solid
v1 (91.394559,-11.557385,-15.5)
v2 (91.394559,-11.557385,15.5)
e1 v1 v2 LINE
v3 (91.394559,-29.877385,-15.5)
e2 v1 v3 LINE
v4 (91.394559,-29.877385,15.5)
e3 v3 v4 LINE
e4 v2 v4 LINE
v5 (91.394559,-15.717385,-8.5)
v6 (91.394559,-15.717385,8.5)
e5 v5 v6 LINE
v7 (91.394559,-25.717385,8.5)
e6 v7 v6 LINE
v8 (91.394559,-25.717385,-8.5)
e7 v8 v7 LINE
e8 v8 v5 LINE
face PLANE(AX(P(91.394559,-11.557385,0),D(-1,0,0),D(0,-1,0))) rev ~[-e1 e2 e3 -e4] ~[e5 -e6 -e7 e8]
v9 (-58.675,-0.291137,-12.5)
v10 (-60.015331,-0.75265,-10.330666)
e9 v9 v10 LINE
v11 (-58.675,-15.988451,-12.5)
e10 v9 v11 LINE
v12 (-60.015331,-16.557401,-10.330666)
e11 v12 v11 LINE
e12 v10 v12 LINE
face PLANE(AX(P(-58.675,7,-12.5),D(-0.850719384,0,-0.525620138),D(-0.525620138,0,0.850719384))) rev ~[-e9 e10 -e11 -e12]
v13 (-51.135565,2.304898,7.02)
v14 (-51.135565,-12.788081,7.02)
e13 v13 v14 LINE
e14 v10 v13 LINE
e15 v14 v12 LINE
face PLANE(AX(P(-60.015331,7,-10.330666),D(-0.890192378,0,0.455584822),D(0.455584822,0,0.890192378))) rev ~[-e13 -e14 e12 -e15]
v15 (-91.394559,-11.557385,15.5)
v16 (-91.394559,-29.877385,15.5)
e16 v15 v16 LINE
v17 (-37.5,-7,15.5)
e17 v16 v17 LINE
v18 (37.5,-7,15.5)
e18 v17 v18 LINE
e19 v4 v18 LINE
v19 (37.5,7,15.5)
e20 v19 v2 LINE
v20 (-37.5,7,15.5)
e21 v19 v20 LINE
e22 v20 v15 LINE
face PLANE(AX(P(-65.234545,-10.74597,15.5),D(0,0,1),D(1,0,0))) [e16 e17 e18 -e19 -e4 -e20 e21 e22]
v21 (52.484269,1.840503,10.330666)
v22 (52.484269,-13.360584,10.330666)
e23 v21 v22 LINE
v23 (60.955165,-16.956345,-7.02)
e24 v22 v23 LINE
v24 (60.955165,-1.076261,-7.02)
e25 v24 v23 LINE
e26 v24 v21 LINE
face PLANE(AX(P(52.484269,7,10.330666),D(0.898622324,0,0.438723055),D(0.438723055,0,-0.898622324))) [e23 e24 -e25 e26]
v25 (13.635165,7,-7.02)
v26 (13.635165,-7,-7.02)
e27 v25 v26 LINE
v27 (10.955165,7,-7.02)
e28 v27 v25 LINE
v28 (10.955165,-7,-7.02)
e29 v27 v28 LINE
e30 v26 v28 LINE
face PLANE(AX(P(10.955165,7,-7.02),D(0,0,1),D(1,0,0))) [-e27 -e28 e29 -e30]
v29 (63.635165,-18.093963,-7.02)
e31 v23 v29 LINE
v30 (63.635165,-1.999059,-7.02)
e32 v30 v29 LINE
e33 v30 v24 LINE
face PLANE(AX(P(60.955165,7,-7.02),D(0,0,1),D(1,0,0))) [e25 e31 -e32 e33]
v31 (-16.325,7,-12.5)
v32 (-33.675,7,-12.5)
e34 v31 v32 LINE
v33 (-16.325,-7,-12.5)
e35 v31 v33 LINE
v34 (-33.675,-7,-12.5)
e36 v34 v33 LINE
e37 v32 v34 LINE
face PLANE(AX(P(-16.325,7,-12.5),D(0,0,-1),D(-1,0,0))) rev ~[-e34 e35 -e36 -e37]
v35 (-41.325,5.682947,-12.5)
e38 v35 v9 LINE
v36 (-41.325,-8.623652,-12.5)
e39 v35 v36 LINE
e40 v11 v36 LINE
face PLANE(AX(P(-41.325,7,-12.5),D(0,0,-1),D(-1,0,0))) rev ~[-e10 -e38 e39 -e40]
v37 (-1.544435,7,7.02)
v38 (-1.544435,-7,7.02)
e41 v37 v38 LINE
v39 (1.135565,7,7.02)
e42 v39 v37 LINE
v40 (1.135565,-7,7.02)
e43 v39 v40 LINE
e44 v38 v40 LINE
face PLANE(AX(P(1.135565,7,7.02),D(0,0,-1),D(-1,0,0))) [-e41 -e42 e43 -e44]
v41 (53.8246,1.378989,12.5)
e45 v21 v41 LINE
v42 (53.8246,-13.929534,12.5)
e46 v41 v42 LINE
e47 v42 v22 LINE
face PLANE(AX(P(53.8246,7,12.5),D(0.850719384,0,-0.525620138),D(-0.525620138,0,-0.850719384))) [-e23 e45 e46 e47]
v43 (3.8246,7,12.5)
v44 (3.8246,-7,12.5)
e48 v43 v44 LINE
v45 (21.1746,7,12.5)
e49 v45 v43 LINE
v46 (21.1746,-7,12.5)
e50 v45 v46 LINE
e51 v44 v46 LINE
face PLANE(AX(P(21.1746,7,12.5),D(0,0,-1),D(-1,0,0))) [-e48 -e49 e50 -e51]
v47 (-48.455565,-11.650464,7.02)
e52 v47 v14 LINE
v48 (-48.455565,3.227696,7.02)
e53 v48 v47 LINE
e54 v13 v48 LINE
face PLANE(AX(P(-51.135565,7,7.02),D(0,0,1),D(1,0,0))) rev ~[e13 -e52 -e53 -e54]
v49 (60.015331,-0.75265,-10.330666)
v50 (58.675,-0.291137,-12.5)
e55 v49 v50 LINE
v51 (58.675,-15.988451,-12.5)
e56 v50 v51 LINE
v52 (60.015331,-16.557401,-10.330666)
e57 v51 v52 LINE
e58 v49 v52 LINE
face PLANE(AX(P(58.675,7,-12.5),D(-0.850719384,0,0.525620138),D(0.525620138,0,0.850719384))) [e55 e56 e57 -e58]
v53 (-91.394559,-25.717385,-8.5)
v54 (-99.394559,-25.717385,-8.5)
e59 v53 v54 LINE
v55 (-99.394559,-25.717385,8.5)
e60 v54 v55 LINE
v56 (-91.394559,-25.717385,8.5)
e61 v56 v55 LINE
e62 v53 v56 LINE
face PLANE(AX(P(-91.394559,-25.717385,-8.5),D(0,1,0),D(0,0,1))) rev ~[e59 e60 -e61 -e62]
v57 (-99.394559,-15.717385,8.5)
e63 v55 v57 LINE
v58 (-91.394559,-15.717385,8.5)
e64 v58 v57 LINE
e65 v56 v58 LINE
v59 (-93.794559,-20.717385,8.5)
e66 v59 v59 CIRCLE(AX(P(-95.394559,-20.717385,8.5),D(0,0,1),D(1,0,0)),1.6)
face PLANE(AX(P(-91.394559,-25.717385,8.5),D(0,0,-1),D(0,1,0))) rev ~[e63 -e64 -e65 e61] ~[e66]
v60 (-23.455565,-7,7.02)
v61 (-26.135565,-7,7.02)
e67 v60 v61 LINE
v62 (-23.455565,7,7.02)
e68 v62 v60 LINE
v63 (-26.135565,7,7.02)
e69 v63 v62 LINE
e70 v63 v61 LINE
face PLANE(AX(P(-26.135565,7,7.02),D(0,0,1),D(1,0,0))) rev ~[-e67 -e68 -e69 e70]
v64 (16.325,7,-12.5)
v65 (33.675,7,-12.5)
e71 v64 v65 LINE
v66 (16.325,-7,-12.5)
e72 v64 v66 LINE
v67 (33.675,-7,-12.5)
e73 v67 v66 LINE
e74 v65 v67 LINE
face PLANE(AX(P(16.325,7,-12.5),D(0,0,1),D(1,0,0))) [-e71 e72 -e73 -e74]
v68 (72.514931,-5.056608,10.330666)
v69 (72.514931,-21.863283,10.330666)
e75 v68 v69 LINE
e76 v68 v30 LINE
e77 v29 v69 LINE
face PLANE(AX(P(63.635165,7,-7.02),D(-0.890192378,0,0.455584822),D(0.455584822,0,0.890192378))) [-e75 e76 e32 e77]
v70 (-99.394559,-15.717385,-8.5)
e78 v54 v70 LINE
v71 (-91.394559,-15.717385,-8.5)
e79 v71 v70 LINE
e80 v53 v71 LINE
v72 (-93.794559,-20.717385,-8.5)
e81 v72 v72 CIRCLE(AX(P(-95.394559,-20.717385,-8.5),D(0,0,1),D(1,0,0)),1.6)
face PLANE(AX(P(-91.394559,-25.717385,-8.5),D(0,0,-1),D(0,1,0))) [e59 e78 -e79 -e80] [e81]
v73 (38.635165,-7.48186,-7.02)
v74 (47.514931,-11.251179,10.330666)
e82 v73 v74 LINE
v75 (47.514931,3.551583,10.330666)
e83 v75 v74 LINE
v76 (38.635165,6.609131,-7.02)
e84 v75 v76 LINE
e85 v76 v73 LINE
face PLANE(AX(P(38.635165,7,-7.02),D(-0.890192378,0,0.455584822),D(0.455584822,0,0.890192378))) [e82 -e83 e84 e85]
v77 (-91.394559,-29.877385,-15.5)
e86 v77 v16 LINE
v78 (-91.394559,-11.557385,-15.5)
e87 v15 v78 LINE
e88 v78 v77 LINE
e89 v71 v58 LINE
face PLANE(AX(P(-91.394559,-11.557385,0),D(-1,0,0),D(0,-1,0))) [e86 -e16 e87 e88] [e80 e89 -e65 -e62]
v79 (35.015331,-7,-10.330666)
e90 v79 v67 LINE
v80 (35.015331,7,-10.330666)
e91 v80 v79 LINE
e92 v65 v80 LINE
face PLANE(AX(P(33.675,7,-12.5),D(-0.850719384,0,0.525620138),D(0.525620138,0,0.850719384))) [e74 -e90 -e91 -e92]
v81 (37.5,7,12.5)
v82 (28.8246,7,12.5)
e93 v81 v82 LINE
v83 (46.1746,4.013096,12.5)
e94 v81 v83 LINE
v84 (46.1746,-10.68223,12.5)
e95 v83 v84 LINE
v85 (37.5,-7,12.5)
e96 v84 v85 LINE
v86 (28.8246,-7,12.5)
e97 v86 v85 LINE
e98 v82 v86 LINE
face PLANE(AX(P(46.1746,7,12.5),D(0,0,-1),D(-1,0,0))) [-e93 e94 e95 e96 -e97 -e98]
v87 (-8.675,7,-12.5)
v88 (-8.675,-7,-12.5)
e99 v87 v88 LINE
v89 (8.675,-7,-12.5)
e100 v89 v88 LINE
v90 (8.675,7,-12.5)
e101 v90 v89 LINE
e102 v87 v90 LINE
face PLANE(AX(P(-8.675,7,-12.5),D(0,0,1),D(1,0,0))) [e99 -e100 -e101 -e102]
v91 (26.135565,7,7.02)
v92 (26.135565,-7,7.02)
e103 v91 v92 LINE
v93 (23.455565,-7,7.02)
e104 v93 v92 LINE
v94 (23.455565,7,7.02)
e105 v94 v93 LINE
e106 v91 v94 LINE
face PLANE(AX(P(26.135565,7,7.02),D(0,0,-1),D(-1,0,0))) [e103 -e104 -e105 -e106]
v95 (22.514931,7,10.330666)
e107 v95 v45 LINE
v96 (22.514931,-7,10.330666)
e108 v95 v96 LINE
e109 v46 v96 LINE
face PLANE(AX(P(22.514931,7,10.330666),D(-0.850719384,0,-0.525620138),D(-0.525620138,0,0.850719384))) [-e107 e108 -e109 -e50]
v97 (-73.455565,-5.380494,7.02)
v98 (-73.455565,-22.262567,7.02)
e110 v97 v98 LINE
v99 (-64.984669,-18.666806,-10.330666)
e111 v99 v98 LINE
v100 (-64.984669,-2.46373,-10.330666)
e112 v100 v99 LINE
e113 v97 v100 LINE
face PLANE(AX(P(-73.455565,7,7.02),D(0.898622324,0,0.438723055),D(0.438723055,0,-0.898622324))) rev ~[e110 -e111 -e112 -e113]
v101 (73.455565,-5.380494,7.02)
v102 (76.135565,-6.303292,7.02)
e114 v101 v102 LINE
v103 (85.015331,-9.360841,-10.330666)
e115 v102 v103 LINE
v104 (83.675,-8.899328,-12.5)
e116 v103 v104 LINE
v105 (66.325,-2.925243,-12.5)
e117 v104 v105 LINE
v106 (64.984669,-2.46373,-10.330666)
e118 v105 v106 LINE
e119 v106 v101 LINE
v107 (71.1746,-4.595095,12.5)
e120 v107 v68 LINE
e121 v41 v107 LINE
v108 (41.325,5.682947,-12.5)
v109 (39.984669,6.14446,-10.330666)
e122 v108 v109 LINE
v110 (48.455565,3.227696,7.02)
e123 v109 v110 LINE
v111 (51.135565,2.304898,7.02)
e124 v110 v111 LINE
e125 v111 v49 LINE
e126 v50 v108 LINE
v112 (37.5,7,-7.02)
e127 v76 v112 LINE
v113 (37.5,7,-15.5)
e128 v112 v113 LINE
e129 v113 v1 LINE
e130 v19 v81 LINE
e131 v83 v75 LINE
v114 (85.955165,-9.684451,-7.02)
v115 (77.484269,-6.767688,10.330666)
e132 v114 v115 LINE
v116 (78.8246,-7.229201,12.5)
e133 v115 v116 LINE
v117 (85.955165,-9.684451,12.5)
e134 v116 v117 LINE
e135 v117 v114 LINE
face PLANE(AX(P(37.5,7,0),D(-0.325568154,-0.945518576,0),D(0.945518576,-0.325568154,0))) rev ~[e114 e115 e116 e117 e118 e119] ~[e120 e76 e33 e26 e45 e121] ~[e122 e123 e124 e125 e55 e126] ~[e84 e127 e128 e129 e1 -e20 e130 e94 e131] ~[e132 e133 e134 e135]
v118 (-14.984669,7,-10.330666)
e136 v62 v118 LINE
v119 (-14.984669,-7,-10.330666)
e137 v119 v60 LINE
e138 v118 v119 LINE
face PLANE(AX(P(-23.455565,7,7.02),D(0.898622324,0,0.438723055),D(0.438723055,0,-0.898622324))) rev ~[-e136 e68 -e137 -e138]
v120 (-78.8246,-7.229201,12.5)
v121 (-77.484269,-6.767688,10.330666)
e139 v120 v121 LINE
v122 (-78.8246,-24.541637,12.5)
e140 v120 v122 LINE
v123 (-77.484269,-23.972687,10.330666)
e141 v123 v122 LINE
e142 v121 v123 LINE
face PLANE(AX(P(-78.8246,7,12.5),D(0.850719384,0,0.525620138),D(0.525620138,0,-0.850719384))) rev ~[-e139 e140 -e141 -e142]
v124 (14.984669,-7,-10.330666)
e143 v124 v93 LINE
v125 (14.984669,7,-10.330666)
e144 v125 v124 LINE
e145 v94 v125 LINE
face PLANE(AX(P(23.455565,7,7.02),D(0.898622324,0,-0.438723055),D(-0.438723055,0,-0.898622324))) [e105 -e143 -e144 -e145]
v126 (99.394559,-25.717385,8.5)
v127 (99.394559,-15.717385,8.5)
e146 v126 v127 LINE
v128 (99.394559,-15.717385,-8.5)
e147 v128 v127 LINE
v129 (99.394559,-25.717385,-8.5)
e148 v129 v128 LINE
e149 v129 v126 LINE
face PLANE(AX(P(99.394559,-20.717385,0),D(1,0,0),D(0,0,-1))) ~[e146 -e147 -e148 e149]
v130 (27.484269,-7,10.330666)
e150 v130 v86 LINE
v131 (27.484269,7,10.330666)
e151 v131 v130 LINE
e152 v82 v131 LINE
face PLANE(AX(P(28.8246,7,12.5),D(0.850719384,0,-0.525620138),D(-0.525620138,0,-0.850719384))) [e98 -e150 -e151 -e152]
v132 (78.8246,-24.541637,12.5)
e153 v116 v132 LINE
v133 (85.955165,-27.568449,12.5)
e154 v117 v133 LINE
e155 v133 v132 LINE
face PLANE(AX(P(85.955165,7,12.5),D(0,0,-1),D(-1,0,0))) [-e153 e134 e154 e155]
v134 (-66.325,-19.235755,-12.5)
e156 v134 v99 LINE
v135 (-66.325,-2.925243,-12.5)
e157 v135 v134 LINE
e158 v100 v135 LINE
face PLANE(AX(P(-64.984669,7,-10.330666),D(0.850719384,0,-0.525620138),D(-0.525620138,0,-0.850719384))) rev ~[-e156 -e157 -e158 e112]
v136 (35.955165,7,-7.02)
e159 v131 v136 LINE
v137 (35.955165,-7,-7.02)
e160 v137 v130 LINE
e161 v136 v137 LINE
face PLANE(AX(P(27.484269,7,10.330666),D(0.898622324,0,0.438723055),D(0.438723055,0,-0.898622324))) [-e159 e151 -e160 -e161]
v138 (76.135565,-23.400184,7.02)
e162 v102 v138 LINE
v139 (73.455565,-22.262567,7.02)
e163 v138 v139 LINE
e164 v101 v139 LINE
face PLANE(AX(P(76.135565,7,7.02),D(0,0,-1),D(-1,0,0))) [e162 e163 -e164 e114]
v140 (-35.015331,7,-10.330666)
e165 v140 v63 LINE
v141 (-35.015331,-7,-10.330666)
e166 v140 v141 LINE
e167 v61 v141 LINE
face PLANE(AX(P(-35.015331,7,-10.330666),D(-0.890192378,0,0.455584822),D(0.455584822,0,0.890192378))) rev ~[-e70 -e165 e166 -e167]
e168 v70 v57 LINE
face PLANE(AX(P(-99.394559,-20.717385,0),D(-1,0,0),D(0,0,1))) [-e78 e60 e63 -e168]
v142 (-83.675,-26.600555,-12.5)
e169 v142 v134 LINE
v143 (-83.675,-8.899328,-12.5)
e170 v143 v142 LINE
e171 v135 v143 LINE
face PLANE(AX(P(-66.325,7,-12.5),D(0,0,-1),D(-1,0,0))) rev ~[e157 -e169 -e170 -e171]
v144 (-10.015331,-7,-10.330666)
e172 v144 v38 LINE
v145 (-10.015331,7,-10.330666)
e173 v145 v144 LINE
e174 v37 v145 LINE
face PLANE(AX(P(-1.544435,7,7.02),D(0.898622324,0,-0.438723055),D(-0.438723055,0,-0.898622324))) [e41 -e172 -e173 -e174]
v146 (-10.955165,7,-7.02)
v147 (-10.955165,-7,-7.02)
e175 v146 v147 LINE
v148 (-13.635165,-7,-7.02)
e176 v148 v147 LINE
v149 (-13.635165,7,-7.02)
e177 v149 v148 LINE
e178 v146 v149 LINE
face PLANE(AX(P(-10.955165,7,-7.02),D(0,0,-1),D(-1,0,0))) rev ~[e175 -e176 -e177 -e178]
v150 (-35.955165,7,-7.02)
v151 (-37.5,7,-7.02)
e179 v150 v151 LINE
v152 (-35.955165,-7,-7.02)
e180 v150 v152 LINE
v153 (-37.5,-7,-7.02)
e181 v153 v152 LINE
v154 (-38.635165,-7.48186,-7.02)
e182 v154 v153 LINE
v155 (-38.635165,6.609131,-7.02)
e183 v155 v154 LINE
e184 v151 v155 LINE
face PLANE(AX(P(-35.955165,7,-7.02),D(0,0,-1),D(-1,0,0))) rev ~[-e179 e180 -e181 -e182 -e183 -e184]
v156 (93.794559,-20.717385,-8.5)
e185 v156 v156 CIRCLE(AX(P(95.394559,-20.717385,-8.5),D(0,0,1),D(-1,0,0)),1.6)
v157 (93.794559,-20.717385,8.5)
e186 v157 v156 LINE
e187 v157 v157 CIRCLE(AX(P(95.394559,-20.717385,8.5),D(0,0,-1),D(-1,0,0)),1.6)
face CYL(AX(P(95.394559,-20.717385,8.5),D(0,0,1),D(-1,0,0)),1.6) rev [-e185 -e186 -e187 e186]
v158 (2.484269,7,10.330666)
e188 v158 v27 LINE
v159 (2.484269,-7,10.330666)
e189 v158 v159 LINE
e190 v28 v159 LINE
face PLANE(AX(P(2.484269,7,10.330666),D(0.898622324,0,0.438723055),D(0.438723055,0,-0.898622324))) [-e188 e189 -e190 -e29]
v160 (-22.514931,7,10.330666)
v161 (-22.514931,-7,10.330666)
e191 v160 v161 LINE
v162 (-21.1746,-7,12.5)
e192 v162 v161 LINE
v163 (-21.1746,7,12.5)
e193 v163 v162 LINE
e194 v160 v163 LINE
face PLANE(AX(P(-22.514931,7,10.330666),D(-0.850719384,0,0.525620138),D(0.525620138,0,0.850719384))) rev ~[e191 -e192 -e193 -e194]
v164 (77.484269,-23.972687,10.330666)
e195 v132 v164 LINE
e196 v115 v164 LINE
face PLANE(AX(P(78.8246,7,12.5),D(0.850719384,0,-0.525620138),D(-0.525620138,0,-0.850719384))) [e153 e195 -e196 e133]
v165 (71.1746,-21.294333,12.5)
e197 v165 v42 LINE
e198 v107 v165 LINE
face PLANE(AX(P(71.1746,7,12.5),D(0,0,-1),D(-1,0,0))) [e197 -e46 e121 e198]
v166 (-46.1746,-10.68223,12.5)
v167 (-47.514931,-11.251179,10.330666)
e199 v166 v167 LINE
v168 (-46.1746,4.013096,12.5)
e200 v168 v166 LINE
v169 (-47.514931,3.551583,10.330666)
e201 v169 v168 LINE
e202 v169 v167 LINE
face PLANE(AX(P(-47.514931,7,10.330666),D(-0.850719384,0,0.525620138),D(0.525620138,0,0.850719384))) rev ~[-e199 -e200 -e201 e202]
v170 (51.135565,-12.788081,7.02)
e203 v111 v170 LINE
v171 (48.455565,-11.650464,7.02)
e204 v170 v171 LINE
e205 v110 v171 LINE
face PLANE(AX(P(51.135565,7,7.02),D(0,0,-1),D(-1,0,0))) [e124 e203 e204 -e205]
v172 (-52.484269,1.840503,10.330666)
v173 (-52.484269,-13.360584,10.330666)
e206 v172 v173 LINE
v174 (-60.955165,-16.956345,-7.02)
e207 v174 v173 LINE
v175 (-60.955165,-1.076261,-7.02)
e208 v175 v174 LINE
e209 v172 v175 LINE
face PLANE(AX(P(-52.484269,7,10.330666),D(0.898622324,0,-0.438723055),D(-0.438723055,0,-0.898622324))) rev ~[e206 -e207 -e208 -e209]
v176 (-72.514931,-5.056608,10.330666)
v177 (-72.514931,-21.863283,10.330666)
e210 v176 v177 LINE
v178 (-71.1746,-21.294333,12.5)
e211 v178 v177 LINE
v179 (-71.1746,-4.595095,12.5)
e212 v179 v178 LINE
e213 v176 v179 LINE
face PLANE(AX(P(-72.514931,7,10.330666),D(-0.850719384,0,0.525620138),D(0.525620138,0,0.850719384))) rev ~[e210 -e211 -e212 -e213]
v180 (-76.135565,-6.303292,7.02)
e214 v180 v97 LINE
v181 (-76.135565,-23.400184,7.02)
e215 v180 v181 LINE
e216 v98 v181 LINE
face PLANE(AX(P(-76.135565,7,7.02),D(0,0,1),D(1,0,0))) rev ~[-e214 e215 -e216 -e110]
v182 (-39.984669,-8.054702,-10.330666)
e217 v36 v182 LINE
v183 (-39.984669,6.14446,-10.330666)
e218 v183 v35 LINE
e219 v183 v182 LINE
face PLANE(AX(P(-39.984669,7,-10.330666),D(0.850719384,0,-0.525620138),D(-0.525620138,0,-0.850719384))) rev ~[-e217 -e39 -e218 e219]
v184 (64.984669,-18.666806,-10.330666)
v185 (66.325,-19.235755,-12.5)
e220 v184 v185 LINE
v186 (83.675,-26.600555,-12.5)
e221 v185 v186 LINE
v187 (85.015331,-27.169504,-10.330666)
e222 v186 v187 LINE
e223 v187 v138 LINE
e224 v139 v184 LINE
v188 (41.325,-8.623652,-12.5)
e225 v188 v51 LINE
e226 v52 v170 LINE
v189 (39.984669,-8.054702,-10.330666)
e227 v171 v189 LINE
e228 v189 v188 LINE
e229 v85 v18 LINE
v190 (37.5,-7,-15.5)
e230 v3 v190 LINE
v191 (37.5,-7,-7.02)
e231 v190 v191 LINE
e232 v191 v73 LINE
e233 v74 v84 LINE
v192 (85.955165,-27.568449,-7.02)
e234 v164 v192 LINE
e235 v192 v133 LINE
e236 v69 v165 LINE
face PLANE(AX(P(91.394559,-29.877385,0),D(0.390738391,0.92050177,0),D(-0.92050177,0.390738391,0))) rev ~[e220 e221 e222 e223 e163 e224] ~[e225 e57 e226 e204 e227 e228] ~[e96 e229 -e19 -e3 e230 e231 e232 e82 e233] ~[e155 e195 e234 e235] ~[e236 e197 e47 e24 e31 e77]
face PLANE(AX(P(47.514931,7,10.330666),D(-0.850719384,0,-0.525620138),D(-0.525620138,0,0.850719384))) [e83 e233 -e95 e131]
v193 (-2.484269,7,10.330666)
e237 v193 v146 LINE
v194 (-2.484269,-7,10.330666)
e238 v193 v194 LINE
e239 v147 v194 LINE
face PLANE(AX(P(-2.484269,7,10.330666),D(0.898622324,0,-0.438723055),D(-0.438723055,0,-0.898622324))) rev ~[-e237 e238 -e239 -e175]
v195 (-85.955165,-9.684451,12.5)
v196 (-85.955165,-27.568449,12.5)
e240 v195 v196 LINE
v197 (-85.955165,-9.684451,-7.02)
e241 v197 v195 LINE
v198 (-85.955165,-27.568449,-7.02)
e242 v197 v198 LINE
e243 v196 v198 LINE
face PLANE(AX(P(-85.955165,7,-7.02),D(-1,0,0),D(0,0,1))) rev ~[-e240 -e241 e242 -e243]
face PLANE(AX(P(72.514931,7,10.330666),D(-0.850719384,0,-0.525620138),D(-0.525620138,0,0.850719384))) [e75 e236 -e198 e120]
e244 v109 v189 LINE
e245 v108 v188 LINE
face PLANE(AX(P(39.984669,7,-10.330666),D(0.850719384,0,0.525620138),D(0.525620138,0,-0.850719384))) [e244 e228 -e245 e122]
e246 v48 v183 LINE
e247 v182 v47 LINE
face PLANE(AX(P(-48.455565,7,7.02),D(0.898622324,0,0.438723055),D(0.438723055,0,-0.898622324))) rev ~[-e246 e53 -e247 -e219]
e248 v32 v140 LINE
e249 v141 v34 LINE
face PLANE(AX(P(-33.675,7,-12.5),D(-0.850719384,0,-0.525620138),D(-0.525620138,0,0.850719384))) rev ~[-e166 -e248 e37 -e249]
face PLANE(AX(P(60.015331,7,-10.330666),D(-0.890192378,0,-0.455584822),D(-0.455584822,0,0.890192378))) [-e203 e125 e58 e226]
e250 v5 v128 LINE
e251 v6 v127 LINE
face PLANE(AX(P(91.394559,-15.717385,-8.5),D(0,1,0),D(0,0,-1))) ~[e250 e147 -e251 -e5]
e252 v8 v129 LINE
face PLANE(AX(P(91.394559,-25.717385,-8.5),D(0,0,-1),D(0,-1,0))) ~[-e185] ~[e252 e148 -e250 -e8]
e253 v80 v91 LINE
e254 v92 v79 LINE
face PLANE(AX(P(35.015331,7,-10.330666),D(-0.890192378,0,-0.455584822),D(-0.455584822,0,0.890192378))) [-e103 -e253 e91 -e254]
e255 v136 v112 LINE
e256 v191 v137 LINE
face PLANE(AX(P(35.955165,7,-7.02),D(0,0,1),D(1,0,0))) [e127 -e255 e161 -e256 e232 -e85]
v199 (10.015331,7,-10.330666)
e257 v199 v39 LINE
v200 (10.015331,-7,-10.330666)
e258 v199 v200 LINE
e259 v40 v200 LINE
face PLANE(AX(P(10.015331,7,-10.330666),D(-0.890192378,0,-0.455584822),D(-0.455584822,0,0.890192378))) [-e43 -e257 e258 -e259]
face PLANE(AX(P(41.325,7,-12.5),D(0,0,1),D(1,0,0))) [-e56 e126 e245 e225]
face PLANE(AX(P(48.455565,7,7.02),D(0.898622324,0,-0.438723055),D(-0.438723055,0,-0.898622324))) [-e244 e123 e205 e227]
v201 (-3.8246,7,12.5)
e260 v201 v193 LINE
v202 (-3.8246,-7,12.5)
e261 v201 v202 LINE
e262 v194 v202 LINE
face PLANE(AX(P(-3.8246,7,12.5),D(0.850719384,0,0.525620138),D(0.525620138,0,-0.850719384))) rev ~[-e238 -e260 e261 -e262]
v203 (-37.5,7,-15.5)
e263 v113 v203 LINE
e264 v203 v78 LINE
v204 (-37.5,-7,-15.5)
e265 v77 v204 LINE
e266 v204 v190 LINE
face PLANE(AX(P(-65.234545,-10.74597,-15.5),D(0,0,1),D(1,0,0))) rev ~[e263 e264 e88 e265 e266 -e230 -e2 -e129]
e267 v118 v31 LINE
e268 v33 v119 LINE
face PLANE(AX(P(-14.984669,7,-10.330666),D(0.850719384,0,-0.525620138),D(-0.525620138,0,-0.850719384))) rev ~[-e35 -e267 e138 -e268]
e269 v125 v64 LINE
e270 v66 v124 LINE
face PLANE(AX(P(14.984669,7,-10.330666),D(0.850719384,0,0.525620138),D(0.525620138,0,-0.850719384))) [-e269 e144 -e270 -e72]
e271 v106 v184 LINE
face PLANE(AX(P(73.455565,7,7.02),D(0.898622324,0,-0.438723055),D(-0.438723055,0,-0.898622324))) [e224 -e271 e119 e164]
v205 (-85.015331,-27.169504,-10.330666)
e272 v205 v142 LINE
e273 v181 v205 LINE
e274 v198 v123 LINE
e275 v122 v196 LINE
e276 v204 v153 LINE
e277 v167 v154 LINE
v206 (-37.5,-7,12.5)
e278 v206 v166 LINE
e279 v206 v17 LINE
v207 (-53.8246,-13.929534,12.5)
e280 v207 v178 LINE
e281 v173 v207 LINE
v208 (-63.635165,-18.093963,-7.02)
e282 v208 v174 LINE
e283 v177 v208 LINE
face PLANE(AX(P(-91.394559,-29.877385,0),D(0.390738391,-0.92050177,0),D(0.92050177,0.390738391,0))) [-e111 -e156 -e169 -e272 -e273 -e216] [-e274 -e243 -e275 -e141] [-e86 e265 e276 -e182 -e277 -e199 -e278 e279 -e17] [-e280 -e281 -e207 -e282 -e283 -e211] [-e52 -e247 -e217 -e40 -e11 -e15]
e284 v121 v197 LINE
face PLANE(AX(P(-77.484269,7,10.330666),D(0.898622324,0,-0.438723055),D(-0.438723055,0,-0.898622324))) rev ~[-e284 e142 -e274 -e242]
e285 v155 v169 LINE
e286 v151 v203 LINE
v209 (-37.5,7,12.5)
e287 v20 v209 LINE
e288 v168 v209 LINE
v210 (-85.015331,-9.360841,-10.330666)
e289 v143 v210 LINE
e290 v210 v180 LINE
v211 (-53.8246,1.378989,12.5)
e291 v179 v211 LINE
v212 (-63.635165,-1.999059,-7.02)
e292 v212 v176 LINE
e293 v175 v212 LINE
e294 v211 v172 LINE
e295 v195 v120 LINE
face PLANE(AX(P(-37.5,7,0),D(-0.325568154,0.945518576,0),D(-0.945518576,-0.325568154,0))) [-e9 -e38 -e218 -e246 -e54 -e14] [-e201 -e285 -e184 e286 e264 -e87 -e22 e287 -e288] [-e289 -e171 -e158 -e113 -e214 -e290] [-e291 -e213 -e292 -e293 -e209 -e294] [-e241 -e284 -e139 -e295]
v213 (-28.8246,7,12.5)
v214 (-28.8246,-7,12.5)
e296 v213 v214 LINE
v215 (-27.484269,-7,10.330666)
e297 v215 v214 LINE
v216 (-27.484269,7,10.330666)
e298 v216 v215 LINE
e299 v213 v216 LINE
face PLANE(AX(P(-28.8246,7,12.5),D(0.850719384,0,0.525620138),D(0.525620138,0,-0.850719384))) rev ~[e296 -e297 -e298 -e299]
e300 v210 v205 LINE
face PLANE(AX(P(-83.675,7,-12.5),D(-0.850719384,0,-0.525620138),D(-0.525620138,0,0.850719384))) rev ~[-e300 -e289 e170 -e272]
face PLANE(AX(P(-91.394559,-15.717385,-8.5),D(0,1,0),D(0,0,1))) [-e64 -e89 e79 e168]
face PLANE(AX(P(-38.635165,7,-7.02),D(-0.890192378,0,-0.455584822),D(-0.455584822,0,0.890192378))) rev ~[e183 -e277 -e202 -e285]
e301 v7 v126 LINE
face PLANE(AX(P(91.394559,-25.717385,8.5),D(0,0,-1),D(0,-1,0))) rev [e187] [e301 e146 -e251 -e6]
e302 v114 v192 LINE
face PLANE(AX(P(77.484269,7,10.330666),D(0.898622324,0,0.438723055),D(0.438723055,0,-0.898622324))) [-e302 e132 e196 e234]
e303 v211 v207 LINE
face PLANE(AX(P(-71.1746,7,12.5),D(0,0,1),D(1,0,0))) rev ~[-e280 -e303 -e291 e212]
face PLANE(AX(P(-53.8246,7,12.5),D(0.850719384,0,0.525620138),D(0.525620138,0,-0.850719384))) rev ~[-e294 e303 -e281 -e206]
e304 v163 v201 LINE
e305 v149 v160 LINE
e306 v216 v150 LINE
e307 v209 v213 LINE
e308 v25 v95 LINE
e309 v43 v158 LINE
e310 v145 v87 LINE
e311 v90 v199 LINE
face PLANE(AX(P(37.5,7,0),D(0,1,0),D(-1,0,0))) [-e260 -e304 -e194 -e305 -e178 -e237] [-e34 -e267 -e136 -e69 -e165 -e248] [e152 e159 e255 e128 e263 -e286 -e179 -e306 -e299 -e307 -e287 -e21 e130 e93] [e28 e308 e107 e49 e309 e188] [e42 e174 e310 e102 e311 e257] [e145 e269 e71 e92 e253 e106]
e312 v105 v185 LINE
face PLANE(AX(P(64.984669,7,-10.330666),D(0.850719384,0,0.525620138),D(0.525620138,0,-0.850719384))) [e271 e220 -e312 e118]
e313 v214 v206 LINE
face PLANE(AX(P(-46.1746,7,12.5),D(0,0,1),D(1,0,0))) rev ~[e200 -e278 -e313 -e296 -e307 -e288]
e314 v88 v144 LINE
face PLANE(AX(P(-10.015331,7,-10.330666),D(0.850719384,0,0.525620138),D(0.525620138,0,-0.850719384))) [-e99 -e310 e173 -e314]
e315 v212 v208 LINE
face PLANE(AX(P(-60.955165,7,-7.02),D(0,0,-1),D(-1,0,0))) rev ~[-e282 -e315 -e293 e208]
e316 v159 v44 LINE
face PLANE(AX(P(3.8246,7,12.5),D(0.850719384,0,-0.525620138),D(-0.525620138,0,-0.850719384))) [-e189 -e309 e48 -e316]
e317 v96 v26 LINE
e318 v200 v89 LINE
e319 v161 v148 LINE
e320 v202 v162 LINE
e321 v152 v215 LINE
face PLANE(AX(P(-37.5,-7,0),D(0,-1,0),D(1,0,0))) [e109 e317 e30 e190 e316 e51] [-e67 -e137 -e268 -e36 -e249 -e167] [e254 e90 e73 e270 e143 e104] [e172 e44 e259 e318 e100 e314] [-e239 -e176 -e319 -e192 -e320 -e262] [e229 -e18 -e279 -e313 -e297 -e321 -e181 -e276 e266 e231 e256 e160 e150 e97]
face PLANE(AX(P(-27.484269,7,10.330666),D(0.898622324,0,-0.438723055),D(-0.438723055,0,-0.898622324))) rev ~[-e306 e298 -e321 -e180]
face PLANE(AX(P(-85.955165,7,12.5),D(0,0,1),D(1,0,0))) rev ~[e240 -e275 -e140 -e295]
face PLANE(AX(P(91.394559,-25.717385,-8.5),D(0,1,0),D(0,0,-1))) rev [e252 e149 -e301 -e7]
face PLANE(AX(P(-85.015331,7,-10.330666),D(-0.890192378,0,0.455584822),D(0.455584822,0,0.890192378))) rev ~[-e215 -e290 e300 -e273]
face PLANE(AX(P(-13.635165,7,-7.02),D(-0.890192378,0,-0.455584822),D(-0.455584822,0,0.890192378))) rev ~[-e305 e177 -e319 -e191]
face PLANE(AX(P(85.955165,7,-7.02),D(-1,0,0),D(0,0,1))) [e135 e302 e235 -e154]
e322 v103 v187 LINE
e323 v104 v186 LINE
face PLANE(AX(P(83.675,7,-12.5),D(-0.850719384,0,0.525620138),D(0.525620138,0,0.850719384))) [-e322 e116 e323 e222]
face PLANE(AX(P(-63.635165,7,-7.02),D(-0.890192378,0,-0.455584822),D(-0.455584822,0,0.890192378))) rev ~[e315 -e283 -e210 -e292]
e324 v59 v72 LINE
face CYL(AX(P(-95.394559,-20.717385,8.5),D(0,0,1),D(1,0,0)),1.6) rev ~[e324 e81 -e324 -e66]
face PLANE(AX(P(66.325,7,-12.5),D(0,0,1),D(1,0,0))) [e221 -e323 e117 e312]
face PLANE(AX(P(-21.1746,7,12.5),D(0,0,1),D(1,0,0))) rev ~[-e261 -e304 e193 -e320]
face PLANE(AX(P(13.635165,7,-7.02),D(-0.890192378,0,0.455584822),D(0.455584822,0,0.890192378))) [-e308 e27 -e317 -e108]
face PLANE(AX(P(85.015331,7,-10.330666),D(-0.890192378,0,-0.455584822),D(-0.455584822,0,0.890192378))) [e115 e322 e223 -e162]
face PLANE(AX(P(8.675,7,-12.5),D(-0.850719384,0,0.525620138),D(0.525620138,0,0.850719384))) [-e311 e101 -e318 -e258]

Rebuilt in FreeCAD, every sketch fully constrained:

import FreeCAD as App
import Part
import Sketcher
Q = App.Units.Quantity

doc = App.newDocument("Part")
params = doc.addObject("Spreadsheet::Sheet", "Params")
for row, (alias, value) in enumerate([
    ("sketch1_width", "75 mm"),
    ("sketch1_length", "57 mm"),
    ("sketch1_height", "18.32 mm"),
    ("pad1_length", "31 mm"),
    ("sketch2_width", "10 mm"),
    ("sketch2_height", "17 mm"),
    ("pad2_length", "8 mm"),
    ("sketch3_diameter", "3.2 mm"),
    ("sketch4_width", "17.35 mm"),
    ("sketch4_width2", "2.68 mm"),
    ("sketch4_height", "19.52 mm"),
    ("sketch4_length", "2.55 mm"),
], start=1):
    params.set(f"A{row}", alias)
    params.set(f"B{row}", "=" + value)
    params.setAlias(f"B{row}", alias)

body = doc.addObject("PartDesign::Body", "Body")

sketch1 = body.newObject("Sketcher::SketchObject", "Sketch")
sketch1.AttachmentSupport = (doc.getObject("XY_Plane"), [""])
sketch1.MapMode = "FlatFace"
sketch1.addGeometry([
    Part.LineSegment(App.Vector(-91.394559, -11.557385, 0), App.Vector(-91.394559, -29.877385, 0)),
    Part.LineSegment(App.Vector(-91.394559, -29.877385, 0), App.Vector(-37.5, -7, 0)),
    Part.LineSegment(App.Vector(-37.5, -7, 0), App.Vector(37.5, -7, 0)),
    Part.LineSegment(App.Vector(37.5, -7, 0), App.Vector(91.394559, -29.877385, 0)),
    Part.LineSegment(App.Vector(91.394559, -29.877385, 0), App.Vector(91.394559, -11.557385, 0)),
    Part.LineSegment(App.Vector(91.394559, -11.557385, 0), App.Vector(37.5, 7, 0)),
    Part.LineSegment(App.Vector(37.5, 7, 0), App.Vector(-37.5, 7, 0)),
    Part.LineSegment(App.Vector(-37.5, 7, 0), App.Vector(-91.394559, -11.557385, 0)),
], False)
sketch1.addConstraint([
    Sketcher.Constraint("Coincident", 0, 2, 1, 1),
    Sketcher.Constraint("Coincident", 1, 2, 2, 1),
    Sketcher.Constraint("Coincident", 2, 2, 3, 1),
    Sketcher.Constraint("Coincident", 3, 2, 4, 1),
    Sketcher.Constraint("Coincident", 4, 2, 5, 1),
    Sketcher.Constraint("Coincident", 5, 2, 6, 1),
    Sketcher.Constraint("Coincident", 6, 2, 7, 1),
    Sketcher.Constraint("Coincident", 7, 2, 0, 1),
    Sketcher.Constraint("Vertical", 0),
    Sketcher.Constraint("Horizontal", 2),
    Sketcher.Constraint("Vertical", 4),
    Sketcher.Constraint("Horizontal", 6),
    Sketcher.Constraint("Symmetric", 1, 2, 5, 2, -1, 1),
    Sketcher.Constraint("Symmetric", 0, 2, 3, 2, -2),
    Sketcher.Constraint("Horizontal", 4, 2, 7, 2),
    Sketcher.Constraint("Vertical", 2, 2, 5, 2),
    Sketcher.Constraint("Vertical", 1, 2, 6, 2),
    Sketcher.Constraint("DistanceX", 2, 1, 2, 2, Q("75 mm")),
    Sketcher.Constraint("Angle", 5, Q("161 deg")),
    Sketcher.Constraint("Distance", 5, Q("57 mm")),
    Sketcher.Constraint("DistanceY", 1, 2, -1, 1, Q("7 mm")),
    Sketcher.Constraint("DistanceY", 0, 2, 0, 1, Q("18.32 mm")),
])
sketch1.setExpression("Constraints[17]", "Params.sketch1_width")
sketch1.setExpression("Constraints[19]", "Params.sketch1_length")
sketch1.setExpression("Constraints[21]", "Params.sketch1_height")
pad1 = body.newObject("PartDesign::Pad", "Pad")
pad1.Profile = sketch1
pad1.setExpression("Length", "Params.pad1_length")
pad1.Midplane = True

sketch2 = body.newObject("Sketcher::SketchObject", "Sketch001")
sketch2.AttachmentSupport = (doc.getObject("YZ_Plane"), [""])
sketch2.MapMode = "FlatFace"
sketch2.AttachmentOffset = App.Placement(App.Vector(0, 0, -91.394559), App.Rotation())
sketch2.addGeometry([
    Part.LineSegment(App.Vector(-15.717385, -8.5, 0), App.Vector(-25.717385, -8.5, 0)),
    Part.LineSegment(App.Vector(-25.717385, -8.5, 0), App.Vector(-25.717385, 8.5, 0)),
    Part.LineSegment(App.Vector(-25.717385, 8.5, 0), App.Vector(-15.717385, 8.5, 0)),
    Part.LineSegment(App.Vector(-15.717385, 8.5, 0), App.Vector(-15.717385, -8.5, 0)),
], False)
sketch2.addConstraint([
    Sketcher.Constraint("Coincident", 0, 2, 1, 1),
    Sketcher.Constraint("Coincident", 1, 2, 2, 1),
    Sketcher.Constraint("Coincident", 2, 2, 3, 1),
    Sketcher.Constraint("Coincident", 3, 2, 0, 1),
    Sketcher.Constraint("Horizontal", 0),
    Sketcher.Constraint("Vertical", 1),
    Sketcher.Constraint("Horizontal", 2),
    Sketcher.Constraint("Vertical", 3),
    Sketcher.Constraint("DistanceX", 0, 2, 0, 1, Q("10 mm")),
    Sketcher.Constraint("DistanceY", 1, 1, 1, 2, Q("17 mm")),
    Sketcher.Constraint("DistanceY", 0, 2, -1, 1, Q("8.5 mm")),
    Sketcher.Constraint("DistanceX", 0, 2, -1, 1, Q("25.717385 mm")),
])
sketch2.setExpression("Constraints[8]", "Params.sketch2_width")
sketch2.setExpression("Constraints[9]", "Params.sketch2_height")
pad2 = body.newObject("PartDesign::Pad", "Pad001")
pad2.Profile = sketch2
pad2.setExpression("Length", "Params.pad2_length")
pad2.Reversed = True

sketch3 = body.newObject("Sketcher::SketchObject", "Sketch002")
sketch3.AttachmentSupport = (doc.getObject("XY_Plane"), [""])
sketch3.MapMode = "FlatFace"
sketch3.AttachmentOffset = App.Placement(App.Vector(0, 0, 8.5), App.Rotation())
sketch3.addGeometry(Part.Circle(App.Vector(-95.394559, -20.717385, 0), App.Vector(0, 0, 1), 1.6), False)
sketch3.addConstraint([
    Sketcher.Constraint("Diameter", 0, Q("3.2 mm")),
    Sketcher.Constraint("DistanceX", 0, 3, -1, 1, Q("95.394559 mm")),
    Sketcher.Constraint("DistanceY", 0, 3, -1, 1, Q("20.717385 mm")),
])
sketch3.setExpression("Constraints[0]", "Params.sketch3_diameter")
pocket1 = body.newObject("PartDesign::Pocket", "Pocket")
pocket1.Profile = sketch3
pocket1.Type = "ThroughAll"
doc.recompute()

mirrored = body.newObject("PartDesign::Mirrored", "Mirrored")
mirrored.Originals = [pad2, pocket1]
mirrored.MirrorPlane = (doc.getObject("YZ_Plane"), [""])
body.Tip = mirrored

sketch4 = body.newObject("Sketcher::SketchObject", "Sketch003")
sketch4.AttachmentSupport = (doc.getObject("XZ_Plane"), [""])
sketch4.MapMode = "FlatFace"
sketch4.AttachmentOffset = App.Placement(App.Vector(0, 0, -7), App.Rotation())
sketch4.addGeometry([
    Part.LineSegment(App.Vector(8.675, -12.5, 0), App.Vector(-8.675, -12.5, 0)),
    Part.LineSegment(App.Vector(-8.675, -12.5, 0), App.Vector(-10.015331, -10.330666, 0)),
    Part.LineSegment(App.Vector(-10.015331, -10.330666, 0), App.Vector(-1.544435, 7.02, 0)),
    Part.LineSegment(App.Vector(-1.544435, 7.02, 0), App.Vector(1.135565, 7.02, 0)),
    Part.LineSegment(App.Vector(1.135565, 7.02, 0), App.Vector(10.015331, -10.330666, 0)),
    Part.LineSegment(App.Vector(10.015331, -10.330666, 0), App.Vector(8.675, -12.5, 0)),
    Part.LineSegment(App.Vector(2.484269, 10.330666, 0), App.Vector(3.8246, 12.5, 0)),
    Part.LineSegment(App.Vector(3.8246, 12.5, 0), App.Vector(21.1746, 12.5, 0)),
    Part.LineSegment(App.Vector(21.1746, 12.5, 0), App.Vector(22.514931, 10.330666, 0)),
    Part.LineSegment(App.Vector(22.514931, 10.330666, 0), App.Vector(13.635165, -7.02, 0)),
    Part.LineSegment(App.Vector(13.635165, -7.02, 0), App.Vector(10.955165, -7.02, 0)),
    Part.LineSegment(App.Vector(10.955165, -7.02, 0), App.Vector(2.484269, 10.330666, 0)),
    Part.LineSegment(App.Vector(26.135565, 7.02, 0), App.Vector(35.015331, -10.330666, 0)),
    Part.LineSegment(App.Vector(35.015331, -10.330666, 0), App.Vector(33.675, -12.5, 0)),
    Part.LineSegment(App.Vector(33.675, -12.5, 0), App.Vector(16.325, -12.5, 0)),
    Part.LineSegment(App.Vector(16.325, -12.5, 0), App.Vector(14.984669, -10.330666, 0)),
    Part.LineSegment(App.Vector(14.984669, -10.330666, 0), App.Vector(23.455565, 7.02, 0)),
    Part.LineSegment(App.Vector(23.455565, 7.02, 0), App.Vector(26.135565, 7.02, 0)),
    Part.LineSegment(App.Vector(27.484269, 10.330666, 0), App.Vector(28.8246, 12.5, 0)),
    Part.LineSegment(App.Vector(28.8246, 12.5, 0), App.Vector(46.1746, 12.5, 0)),
    Part.LineSegment(App.Vector(46.1746, 12.5, 0), App.Vector(47.514931, 10.330666, 0)),
    Part.LineSegment(App.Vector(47.514931, 10.330666, 0), App.Vector(38.635165, -7.02, 0)),
    Part.LineSegment(App.Vector(38.635165, -7.02, 0), App.Vector(35.955165, -7.02, 0)),
    Part.LineSegment(App.Vector(35.955165, -7.02, 0), App.Vector(27.484269, 10.330666, 0)),
    Part.LineSegment(App.Vector(51.135565, 7.02, 0), App.Vector(60.015331, -10.330666, 0)),
    Part.LineSegment(App.Vector(60.015331, -10.330666, 0), App.Vector(58.675, -12.5, 0)),
    Part.LineSegment(App.Vector(58.675, -12.5, 0), App.Vector(41.325, -12.5, 0)),
    Part.LineSegment(App.Vector(41.325, -12.5, 0), App.Vector(39.984669, -10.330666, 0)),
    Part.LineSegment(App.Vector(39.984669, -10.330666, 0), App.Vector(48.455565, 7.02, 0)),
    Part.LineSegment(App.Vector(48.455565, 7.02, 0), App.Vector(51.135565, 7.02, 0)),
    Part.LineSegment(App.Vector(52.484269, 10.330666, 0), App.Vector(53.8246, 12.5, 0)),
    Part.LineSegment(App.Vector(53.8246, 12.5, 0), App.Vector(71.1746, 12.5, 0)),
    Part.LineSegment(App.Vector(71.1746, 12.5, 0), App.Vector(72.514931, 10.330666, 0)),
    Part.LineSegment(App.Vector(72.514931, 10.330666, 0), App.Vector(63.635165, -7.02, 0)),
    Part.LineSegment(App.Vector(63.635165, -7.02, 0), App.Vector(60.955165, -7.02, 0)),
    Part.LineSegment(App.Vector(60.955165, -7.02, 0), App.Vector(52.484269, 10.330666, 0)),
    Part.LineSegment(App.Vector(76.135565, 7.02, 0), App.Vector(85.015331, -10.330666, 0)),
    Part.LineSegment(App.Vector(85.015331, -10.330666, 0), App.Vector(83.675, -12.5, 0)),
    Part.LineSegment(App.Vector(83.675, -12.5, 0), App.Vector(66.325, -12.5, 0)),
    Part.LineSegment(App.Vector(66.325, -12.5, 0), App.Vector(64.984669, -10.330666, 0)),
    Part.LineSegment(App.Vector(64.984669, -10.330666, 0), App.Vector(73.455565, 7.02, 0)),
    Part.LineSegment(App.Vector(73.455565, 7.02, 0), App.Vector(76.135565, 7.02, 0)),
    Part.LineSegment(App.Vector(77.484269, 10.330666, 0), App.Vector(78.8246, 12.5, 0)),
    Part.LineSegment(App.Vector(78.8246, 12.5, 0), App.Vector(85.955165, 12.5, 0)),
    Part.LineSegment(App.Vector(85.955165, 12.5, 0), App.Vector(85.955165, -7.02, 0)),
    Part.LineSegment(App.Vector(85.955165, -7.02, 0), App.Vector(77.484269, 10.330666, 0)),
    Part.LineSegment(App.Vector(-3.8246, 12.5, 0), App.Vector(-2.484269, 10.330666, 0)),
    Part.LineSegment(App.Vector(-2.484269, 10.330666, 0), App.Vector(-10.955165, -7.02, 0)),
    Part.LineSegment(App.Vector(-10.955165, -7.02, 0), App.Vector(-13.635165, -7.02, 0)),
    Part.LineSegment(App.Vector(-13.635165, -7.02, 0), App.Vector(-22.514931, 10.330666, 0)),
    Part.LineSegment(App.Vector(-22.514931, 10.330666, 0), App.Vector(-21.1746, 12.5, 0)),
    Part.LineSegment(App.Vector(-21.1746, 12.5, 0), App.Vector(-3.8246, 12.5, 0)),
    Part.LineSegment(App.Vector(-83.675, -12.5, 0), App.Vector(-85.015331, -10.330666, 0)),
    Part.LineSegment(App.Vector(-85.015331, -10.330666, 0), App.Vector(-76.135565, 7.02, 0)),
    Part.LineSegment(App.Vector(-76.135565, 7.02, 0), App.Vector(-73.455565, 7.02, 0)),
    Part.LineSegment(App.Vector(-73.455565, 7.02, 0), App.Vector(-64.984669, -10.330666, 0)),
    Part.LineSegment(App.Vector(-64.984669, -10.330666, 0), App.Vector(-66.325, -12.5, 0)),
    Part.LineSegment(App.Vector(-66.325, -12.5, 0), App.Vector(-83.675, -12.5, 0)),
    Part.LineSegment(App.Vector(-60.955165, -7.02, 0), App.Vector(-63.635165, -7.02, 0)),
    Part.LineSegment(App.Vector(-63.635165, -7.02, 0), App.Vector(-72.514931, 10.330666, 0)),
    Part.LineSegment(App.Vector(-72.514931, 10.330666, 0), App.Vector(-71.1746, 12.5, 0)),
    Part.LineSegment(App.Vector(-71.1746, 12.5, 0), App.Vector(-53.8246, 12.5, 0)),
    Part.LineSegment(App.Vector(-53.8246, 12.5, 0), App.Vector(-52.484269, 10.330666, 0)),
    Part.LineSegment(App.Vector(-52.484269, 10.330666, 0), App.Vector(-60.955165, -7.02, 0)),
    Part.LineSegment(App.Vector(-58.675, -12.5, 0), App.Vector(-60.015331, -10.330666, 0)),
    Part.LineSegment(App.Vector(-60.015331, -10.330666, 0), App.Vector(-51.135565, 7.02, 0)),
    Part.LineSegment(App.Vector(-51.135565, 7.02, 0), App.Vector(-48.455565, 7.02, 0)),
    Part.LineSegment(App.Vector(-48.455565, 7.02, 0), App.Vector(-39.984669, -10.330666, 0)),
    Part.LineSegment(App.Vector(-39.984669, -10.330666, 0), App.Vector(-41.325, -12.5, 0)),
    Part.LineSegment(App.Vector(-41.325, -12.5, 0), App.Vector(-58.675, -12.5, 0)),
    Part.LineSegment(App.Vector(-35.955165, -7.02, 0), App.Vector(-38.635165, -7.02, 0)),
    Part.LineSegment(App.Vector(-38.635165, -7.02, 0), App.Vector(-47.514931, 10.330666, 0)),
    Part.LineSegment(App.Vector(-47.514931, 10.330666, 0), App.Vector(-46.1746, 12.5, 0)),
    Part.LineSegment(App.Vector(-46.1746, 12.5, 0), App.Vector(-28.8246, 12.5, 0)),
    Part.LineSegment(App.Vector(-28.8246, 12.5, 0), App.Vector(-27.484269, 10.330666, 0)),
    Part.LineSegment(App.Vector(-27.484269, 10.330666, 0), App.Vector(-35.955165, -7.02, 0)),
    Part.LineSegment(App.Vector(-33.675, -12.5, 0), App.Vector(-35.015331, -10.330666, 0)),
    Part.LineSegment(App.Vector(-35.015331, -10.330666, 0), App.Vector(-26.135565, 7.02, 0)),
    Part.LineSegment(App.Vector(-26.135565, 7.02, 0), App.Vector(-23.455565, 7.02, 0)),
    Part.LineSegment(App.Vector(-23.455565, 7.02, 0), App.Vector(-14.984669, -10.330666, 0)),
    Part.LineSegment(App.Vector(-14.984669, -10.330666, 0), App.Vector(-16.325, -12.5, 0)),
    Part.LineSegment(App.Vector(-16.325, -12.5, 0), App.Vector(-33.675, -12.5, 0)),
    Part.LineSegment(App.Vector(-85.955165, -7.02, 0), App.Vector(-85.955165, 12.5, 0)),
    Part.LineSegment(App.Vector(-85.955165, 12.5, 0), App.Vector(-78.8246, 12.5, 0)),
    Part.LineSegment(App.Vector(-78.8246, 12.5, 0), App.Vector(-77.484269, 10.330666, 0)),
    Part.LineSegment(App.Vector(-77.484269, 10.330666, 0), App.Vector(-85.955165, -7.02, 0)),
], False)
sketch4.addConstraint([
    Sketcher.Constraint("Coincident", 0, 2, 1, 1),
    Sketcher.Constraint("Coincident", 1, 2, 2, 1),
    Sketcher.Constraint("Coincident", 2, 2, 3, 1),
    Sketcher.Constraint("Coincident", 3, 2, 4, 1),
    Sketcher.Constraint("Coincident", 4, 2, 5, 1),
    Sketcher.Constraint("Coincident", 5, 2, 0, 1),
    Sketcher.Constraint("Coincident", 6, 2, 7, 1),
    Sketcher.Constraint("Coincident", 7, 2, 8, 1),
    Sketcher.Constraint("Coincident", 8, 2, 9, 1),
    Sketcher.Constraint("Coincident", 9, 2, 10, 1),
    Sketcher.Constraint("Coincident", 10, 2, 11, 1),
    Sketcher.Constraint("Coincident", 11, 2, 6, 1),
    Sketcher.Constraint("Coincident", 12, 2, 13, 1),
    Sketcher.Constraint("Coincident", 13, 2, 14, 1),
    Sketcher.Constraint("Coincident", 14, 2, 15, 1),
    Sketcher.Constraint("Coincident", 15, 2, 16, 1),
    Sketcher.Constraint("Coincident", 16, 2, 17, 1),
    Sketcher.Constraint("Coincident", 17, 2, 12, 1),
    Sketcher.Constraint("Coincident", 18, 2, 19, 1),
    Sketcher.Constraint("Coincident", 19, 2, 20, 1),
    Sketcher.Constraint("Coincident", 20, 2, 21, 1),
    Sketcher.Constraint("Coincident", 21, 2, 22, 1),
    Sketcher.Constraint("Coincident", 22, 2, 23, 1),
    Sketcher.Constraint("Coincident", 23, 2, 18, 1),
    Sketcher.Constraint("Coincident", 24, 2, 25, 1),
    Sketcher.Constraint("Coincident", 25, 2, 26, 1),
    Sketcher.Constraint("Coincident", 26, 2, 27, 1),
    Sketcher.Constraint("Coincident", 27, 2, 28, 1),
    Sketcher.Constraint("Coincident", 28, 2, 29, 1),
    Sketcher.Constraint("Coincident", 29, 2, 24, 1),
    Sketcher.Constraint("Coincident", 30, 2, 31, 1),
    Sketcher.Constraint("Coincident", 31, 2, 32, 1),
    Sketcher.Constraint("Coincident", 32, 2, 33, 1),
    Sketcher.Constraint("Coincident", 33, 2, 34, 1),
    Sketcher.Constraint("Coincident", 34, 2, 35, 1),
    Sketcher.Constraint("Coincident", 35, 2, 30, 1),
    Sketcher.Constraint("Coincident", 36, 2, 37, 1),
    Sketcher.Constraint("Coincident", 37, 2, 38, 1),
    Sketcher.Constraint("Coincident", 38, 2, 39, 1),
    Sketcher.Constraint("Coincident", 39, 2, 40, 1),
    Sketcher.Constraint("Coincident", 40, 2, 41, 1),
    Sketcher.Constraint("Coincident", 41, 2, 36, 1),
    Sketcher.Constraint("Coincident", 42, 2, 43, 1),
    Sketcher.Constraint("Coincident", 43, 2, 44, 1),
    Sketcher.Constraint("Coincident", 44, 2, 45, 1),
    Sketcher.Constraint("Coincident", 45, 2, 42, 1),
    Sketcher.Constraint("Coincident", 46, 2, 47, 1),
    Sketcher.Constraint("Coincident", 47, 2, 48, 1),
    Sketcher.Constraint("Coincident", 48, 2, 49, 1),
    Sketcher.Constraint("Coincident", 49, 2, 50, 1),
    Sketcher.Constraint("Coincident", 50, 2, 51, 1),
    Sketcher.Constraint("Coincident", 51, 2, 46, 1),
    Sketcher.Constraint("Coincident", 52, 2, 53, 1),
    Sketcher.Constraint("Coincident", 53, 2, 54, 1),
    Sketcher.Constraint("Coincident", 54, 2, 55, 1),
    Sketcher.Constraint("Coincident", 55, 2, 56, 1),
    Sketcher.Constraint("Coincident", 56, 2, 57, 1),
    Sketcher.Constraint("Coincident", 57, 2, 52, 1),
    Sketcher.Constraint("Coincident", 58, 2, 59, 1),
    Sketcher.Constraint("Coincident", 59, 2, 60, 1),
    Sketcher.Constraint("Coincident", 60, 2, 61, 1),
    Sketcher.Constraint("Coincident", 61, 2, 62, 1),
    Sketcher.Constraint("Coincident", 62, 2, 63, 1),
    Sketcher.Constraint("Coincident", 63, 2, 58, 1),
    Sketcher.Constraint("Coincident", 64, 2, 65, 1),
    Sketcher.Constraint("Coincident", 65, 2, 66, 1),
    Sketcher.Constraint("Coincident", 66, 2, 67, 1),
    Sketcher.Constraint("Coincident", 67, 2, 68, 1),
    Sketcher.Constraint("Coincident", 68, 2, 69, 1),
    Sketcher.Constraint("Coincident", 69, 2, 64, 1),
    Sketcher.Constraint("Coincident", 70, 2, 71, 1),
    Sketcher.Constraint("Coincident", 71, 2, 72, 1),
    Sketcher.Constraint("Coincident", 72, 2, 73, 1),
    Sketcher.Constraint("Coincident", 73, 2, 74, 1),
    Sketcher.Constraint("Coincident", 74, 2, 75, 1),
    Sketcher.Constraint("Coincident", 75, 2, 70, 1),
    Sketcher.Constraint("Coincident", 76, 2, 77, 1),
    Sketcher.Constraint("Coincident", 77, 2, 78, 1),
    Sketcher.Constraint("Coincident", 78, 2, 79, 1),
    Sketcher.Constraint("Coincident", 79, 2, 80, 1),
    Sketcher.Constraint("Coincident", 80, 2, 81, 1),
    Sketcher.Constraint("Coincident", 81, 2, 76, 1),
    Sketcher.Constraint("Coincident", 82, 2, 83, 1),
    Sketcher.Constraint("Coincident", 83, 2, 84, 1),
    Sketcher.Constraint("Coincident", 84, 2, 85, 1),
    Sketcher.Constraint("Coincident", 85, 2, 82, 1),
    Sketcher.Constraint("Horizontal", 0),
    Sketcher.Constraint("Horizontal", 3),
    Sketcher.Constraint("Horizontal", 7),
    Sketcher.Constraint("Horizontal", 10),
    Sketcher.Constraint("Horizontal", 14),
    Sketcher.Constraint("Horizontal", 17),
    Sketcher.Constraint("Horizontal", 19),
    Sketcher.Constraint("Horizontal", 22),
    Sketcher.Constraint("Horizontal", 26),
    Sketcher.Constraint("Horizontal", 29),
    Sketcher.Constraint("Horizontal", 31),
    Sketcher.Constraint("Horizontal", 34),
    Sketcher.Constraint("Horizontal", 38),
    Sketcher.Constraint("Horizontal", 41),
    Sketcher.Constraint("Horizontal", 43),
    Sketcher.Constraint("Vertical", 44),
    Sketcher.Constraint("Horizontal", 48),
    Sketcher.Constraint("Horizontal", 51),
    Sketcher.Constraint("Horizontal", 54),
    Sketcher.Constraint("Horizontal", 57),
    Sketcher.Constraint("Horizontal", 58),
    Sketcher.Constraint("Horizontal", 61),
    Sketcher.Constraint("Horizontal", 66),
    Sketcher.Constraint("Horizontal", 69),
    Sketcher.Constraint("Horizontal", 70),
    Sketcher.Constraint("Horizontal", 73),
    Sketcher.Constraint("Horizontal", 78),
    Sketcher.Constraint("Horizontal", 81),
    Sketcher.Constraint("Vertical", 82),
    Sketcher.Constraint("Horizontal", 83),
    Sketcher.Constraint("Symmetric", 1, 2, 4, 2, -2),
    Sketcher.Constraint("Symmetric", 11, 2, 46, 2, -2),
    Sketcher.Constraint("Symmetric", 10, 2, 47, 2, -2),
    Sketcher.Constraint("Symmetric", 8, 2, 49, 2, -2),
    Sketcher.Constraint("Symmetric", 7, 2, 50, 2, -2),
    Sketcher.Constraint("Symmetric", 36, 2, 52, 2, -2),
    Sketcher.Constraint("Symmetric", 41, 2, 53, 2, -2),
    Sketcher.Constraint("Symmetric", 39, 2, 55, 2, -2),
    Sketcher.Constraint("Symmetric", 38, 2, 56, 2, -2),
    Sketcher.Constraint("Symmetric", 33, 2, 58, 2, -2),
    Sketcher.Constraint("Symmetric", 32, 2, 59, 2, -2),
    Sketcher.Constraint("Symmetric", 31, 2, 60, 2, -2),
    Sketcher.Constraint("Symmetric", 35, 2, 62, 2, -2),
    Sketcher.Constraint("Symmetric", 24, 2, 64, 2, -2),
    Sketcher.Constraint("Symmetric", 29, 2, 65, 2, -2),
    Sketcher.Constraint("Symmetric", 27, 2, 67, 2, -2),
    Sketcher.Constraint("Symmetric", 26, 2, 68, 2, -2),
    Sketcher.Constraint("Symmetric", 21, 2, 70, 2, -2),
    Sketcher.Constraint("Symmetric", 20, 2, 71, 2, -2),
    Sketcher.Constraint("Symmetric", 19, 2, 72, 2, -2),
    Sketcher.Constraint("Symmetric", 23, 2, 74, 2, -2),
    Sketcher.Constraint("Symmetric", 12, 2, 76, 2, -2),
    Sketcher.Constraint("Symmetric", 17, 2, 77, 2, -2),
    Sketcher.Constraint("Symmetric", 15, 2, 79, 2, -2),
    Sketcher.Constraint("Symmetric", 14, 2, 80, 2, -2),
    Sketcher.Constraint("Symmetric", 43, 2, 82, 2, -2),
    Sketcher.Constraint("Symmetric", 45, 2, 84, 2, -2),
    Sketcher.Constraint("Parallel", 5, 6),
    Sketcher.Constraint("Parallel", 1, 8),
    Sketcher.Constraint("Parallel", 4, 12),
    Sketcher.Constraint("Parallel", 6, 13),
    Sketcher.Constraint("Parallel", 8, 15),
    Sketcher.Constraint("Parallel", 2, 16),
    Sketcher.Constraint("Parallel", 13, 18),
    Sketcher.Constraint("Parallel", 15, 20),
    Sketcher.Constraint("Parallel", 9, 21),
    Sketcher.Constraint("Parallel", 11, 23),
    Sketcher.Constraint("Parallel", 12, 24),
    Sketcher.Constraint("Parallel", 18, 25),
    Sketcher.Constraint("Parallel", 20, 27),
    Sketcher.Constraint("Parallel", 16, 28),
    Sketcher.Constraint("Parallel", 25, 30),
    Sketcher.Constraint("Parallel", 27, 32),
    Sketcher.Constraint("Parallel", 21, 33),
    Sketcher.Constraint("Parallel", 23, 35),
    Sketcher.Constraint("Parallel", 24, 36),
    Sketcher.Constraint("Parallel", 30, 37),
    Sketcher.Constraint("Parallel", 32, 39),
    Sketcher.Constraint("Parallel", 28, 40),
    Sketcher.Constraint("Parallel", 37, 42),
    Sketcher.Constraint("Parallel", 35, 45),
    Sketcher.Constraint("Parallel", 39, 46),
    Sketcher.Constraint("Parallel", 40, 47),
    Sketcher.Constraint("Parallel", 36, 49),
    Sketcher.Constraint("Parallel", 42, 50),
    Sketcher.Constraint("Parallel", 46, 52),
    Sketcher.Constraint("Parallel", 33, 53),
    Sketcher.Constraint("Parallel", 45, 55),
    Sketcher.Constraint("Parallel", 52, 62),
    Sketcher.Constraint("Parallel", 47, 63),
    Sketcher.Constraint("Parallel", 62, 64),
    Sketcher.Constraint("Parallel", 55, 67),
    Sketcher.Constraint("Parallel", 64, 74),
    Sketcher.Constraint("Parallel", 63, 75),
    Sketcher.Constraint("Parallel", 74, 76),
    Sketcher.Constraint("Parallel", 67, 79),
    Sketcher.Constraint("Parallel", 76, 84),
    Sketcher.Constraint("Parallel", 75, 85),
    Sketcher.Constraint("Horizontal", 8, 2, 11, 2),
    Sketcher.Constraint("Horizontal", 4, 2, 12, 2),
    Sketcher.Constraint("Horizontal", 5, 2, 13, 2),
    Sketcher.Constraint("Horizontal", 12, 2, 15, 2),
    Sketcher.Constraint("Horizontal", 3, 2, 16, 2),
    Sketcher.Constraint("Horizontal", 7, 2, 18, 2),
    Sketcher.Constraint("Horizontal", 11, 2, 20, 2),
    Sketcher.Constraint("Horizontal", 10, 2, 21, 2),
    Sketcher.Constraint("Horizontal", 20, 2, 23, 2),
    Sketcher.Constraint("Horizontal", 15, 2, 24, 2),
    Sketcher.Constraint("Horizontal", 14, 2, 25, 2),
    Sketcher.Constraint("Horizontal", 24, 2, 27, 2),
    Sketcher.Constraint("Horizontal", 17, 2, 28, 2),
    Sketcher.Constraint("Horizontal", 19, 2, 30, 2),
    Sketcher.Constraint("Horizontal", 23, 2, 32, 2),
    Sketcher.Constraint("Horizontal", 22, 2, 33, 2),
    Sketcher.Constraint("Horizontal", 32, 2, 35, 2),
    Sketcher.Constraint("Horizontal", 27, 2, 36, 2),
    Sketcher.Constraint("Horizontal", 26, 2, 37, 2),
    Sketcher.Constraint("Horizontal", 36, 2, 39, 2),
    Sketcher.Constraint("Horizontal", 29, 2, 40, 2),
    Sketcher.Constraint("Horizontal", 31, 2, 42, 2),
    Sketcher.Constraint("Horizontal", 34, 2, 44, 2),
    Sketcher.Constraint("Horizontal", 35, 2, 45, 2),
    Sketcher.Constraint("Equal", 0, 7),
    Sketcher.Constraint("Equal", 3, 10),
    Sketcher.Constraint("Equal", 7, 14),
    Sketcher.Constraint("Equal", 14, 19),
    Sketcher.Constraint("Equal", 19, 26),
    Sketcher.Constraint("Equal", 26, 31),
    Sketcher.Constraint("Equal", 31, 38),
    Sketcher.Constraint("Equal", 5, 6),
    Sketcher.Constraint("DistanceX", 0, 2, 0, 1, Q("17.35 mm")),
    Sketcher.Constraint("DistanceX", 3, 1, 3, 2, Q("2.68 mm")),
    Sketcher.Constraint("DistanceY", 44, 2, 44, 1, Q("19.52 mm")),
    Sketcher.Constraint("DistanceY", 0, 2, -1, 1, Q("12.5 mm")),
    Sketcher.Constraint("DistanceY", -1, 1, 6, 2, Q("12.5 mm")),
    Sketcher.Constraint("Angle", 1, Q("121.71 deg")),
    Sketcher.Constraint("Distance", 1, Q("2.55 mm")),
    Sketcher.Constraint("DistanceX", -1, 1, 13, 2, Q("33.675 mm")),
    Sketcher.Constraint("DistanceX", -1, 1, 25, 2, Q("58.675 mm")),
    Sketcher.Constraint("DistanceX", -1, 1, 37, 2, Q("83.675 mm")),
    Sketcher.Constraint("DistanceX", -1, 1, 6, 2, Q("3.8246 mm")),
    Sketcher.Constraint("DistanceX", -1, 1, 18, 2, Q("28.8246 mm")),
    Sketcher.Constraint("DistanceX", -1, 1, 30, 2, Q("53.8246 mm")),
    Sketcher.Constraint("DistanceX", -1, 1, 42, 2, Q("78.8246 mm")),
    Sketcher.Constraint("DistanceX", 43, 1, 43, 2, Q("7.130565 mm")),
])
sketch4.setExpression("Constraints[216]", "Params.sketch4_width")
sketch4.setExpression("Constraints[217]", "Params.sketch4_width2")
sketch4.setExpression("Constraints[218]", "Params.sketch4_height")
sketch4.setExpression("Constraints[222]", "Params.sketch4_length")
pocket2 = body.newObject("PartDesign::Pocket", "Pocket001")
pocket2.Profile = sketch4
pocket2.Type = "ThroughAll"
pocket2.Reversed = True

doc.recompute()
